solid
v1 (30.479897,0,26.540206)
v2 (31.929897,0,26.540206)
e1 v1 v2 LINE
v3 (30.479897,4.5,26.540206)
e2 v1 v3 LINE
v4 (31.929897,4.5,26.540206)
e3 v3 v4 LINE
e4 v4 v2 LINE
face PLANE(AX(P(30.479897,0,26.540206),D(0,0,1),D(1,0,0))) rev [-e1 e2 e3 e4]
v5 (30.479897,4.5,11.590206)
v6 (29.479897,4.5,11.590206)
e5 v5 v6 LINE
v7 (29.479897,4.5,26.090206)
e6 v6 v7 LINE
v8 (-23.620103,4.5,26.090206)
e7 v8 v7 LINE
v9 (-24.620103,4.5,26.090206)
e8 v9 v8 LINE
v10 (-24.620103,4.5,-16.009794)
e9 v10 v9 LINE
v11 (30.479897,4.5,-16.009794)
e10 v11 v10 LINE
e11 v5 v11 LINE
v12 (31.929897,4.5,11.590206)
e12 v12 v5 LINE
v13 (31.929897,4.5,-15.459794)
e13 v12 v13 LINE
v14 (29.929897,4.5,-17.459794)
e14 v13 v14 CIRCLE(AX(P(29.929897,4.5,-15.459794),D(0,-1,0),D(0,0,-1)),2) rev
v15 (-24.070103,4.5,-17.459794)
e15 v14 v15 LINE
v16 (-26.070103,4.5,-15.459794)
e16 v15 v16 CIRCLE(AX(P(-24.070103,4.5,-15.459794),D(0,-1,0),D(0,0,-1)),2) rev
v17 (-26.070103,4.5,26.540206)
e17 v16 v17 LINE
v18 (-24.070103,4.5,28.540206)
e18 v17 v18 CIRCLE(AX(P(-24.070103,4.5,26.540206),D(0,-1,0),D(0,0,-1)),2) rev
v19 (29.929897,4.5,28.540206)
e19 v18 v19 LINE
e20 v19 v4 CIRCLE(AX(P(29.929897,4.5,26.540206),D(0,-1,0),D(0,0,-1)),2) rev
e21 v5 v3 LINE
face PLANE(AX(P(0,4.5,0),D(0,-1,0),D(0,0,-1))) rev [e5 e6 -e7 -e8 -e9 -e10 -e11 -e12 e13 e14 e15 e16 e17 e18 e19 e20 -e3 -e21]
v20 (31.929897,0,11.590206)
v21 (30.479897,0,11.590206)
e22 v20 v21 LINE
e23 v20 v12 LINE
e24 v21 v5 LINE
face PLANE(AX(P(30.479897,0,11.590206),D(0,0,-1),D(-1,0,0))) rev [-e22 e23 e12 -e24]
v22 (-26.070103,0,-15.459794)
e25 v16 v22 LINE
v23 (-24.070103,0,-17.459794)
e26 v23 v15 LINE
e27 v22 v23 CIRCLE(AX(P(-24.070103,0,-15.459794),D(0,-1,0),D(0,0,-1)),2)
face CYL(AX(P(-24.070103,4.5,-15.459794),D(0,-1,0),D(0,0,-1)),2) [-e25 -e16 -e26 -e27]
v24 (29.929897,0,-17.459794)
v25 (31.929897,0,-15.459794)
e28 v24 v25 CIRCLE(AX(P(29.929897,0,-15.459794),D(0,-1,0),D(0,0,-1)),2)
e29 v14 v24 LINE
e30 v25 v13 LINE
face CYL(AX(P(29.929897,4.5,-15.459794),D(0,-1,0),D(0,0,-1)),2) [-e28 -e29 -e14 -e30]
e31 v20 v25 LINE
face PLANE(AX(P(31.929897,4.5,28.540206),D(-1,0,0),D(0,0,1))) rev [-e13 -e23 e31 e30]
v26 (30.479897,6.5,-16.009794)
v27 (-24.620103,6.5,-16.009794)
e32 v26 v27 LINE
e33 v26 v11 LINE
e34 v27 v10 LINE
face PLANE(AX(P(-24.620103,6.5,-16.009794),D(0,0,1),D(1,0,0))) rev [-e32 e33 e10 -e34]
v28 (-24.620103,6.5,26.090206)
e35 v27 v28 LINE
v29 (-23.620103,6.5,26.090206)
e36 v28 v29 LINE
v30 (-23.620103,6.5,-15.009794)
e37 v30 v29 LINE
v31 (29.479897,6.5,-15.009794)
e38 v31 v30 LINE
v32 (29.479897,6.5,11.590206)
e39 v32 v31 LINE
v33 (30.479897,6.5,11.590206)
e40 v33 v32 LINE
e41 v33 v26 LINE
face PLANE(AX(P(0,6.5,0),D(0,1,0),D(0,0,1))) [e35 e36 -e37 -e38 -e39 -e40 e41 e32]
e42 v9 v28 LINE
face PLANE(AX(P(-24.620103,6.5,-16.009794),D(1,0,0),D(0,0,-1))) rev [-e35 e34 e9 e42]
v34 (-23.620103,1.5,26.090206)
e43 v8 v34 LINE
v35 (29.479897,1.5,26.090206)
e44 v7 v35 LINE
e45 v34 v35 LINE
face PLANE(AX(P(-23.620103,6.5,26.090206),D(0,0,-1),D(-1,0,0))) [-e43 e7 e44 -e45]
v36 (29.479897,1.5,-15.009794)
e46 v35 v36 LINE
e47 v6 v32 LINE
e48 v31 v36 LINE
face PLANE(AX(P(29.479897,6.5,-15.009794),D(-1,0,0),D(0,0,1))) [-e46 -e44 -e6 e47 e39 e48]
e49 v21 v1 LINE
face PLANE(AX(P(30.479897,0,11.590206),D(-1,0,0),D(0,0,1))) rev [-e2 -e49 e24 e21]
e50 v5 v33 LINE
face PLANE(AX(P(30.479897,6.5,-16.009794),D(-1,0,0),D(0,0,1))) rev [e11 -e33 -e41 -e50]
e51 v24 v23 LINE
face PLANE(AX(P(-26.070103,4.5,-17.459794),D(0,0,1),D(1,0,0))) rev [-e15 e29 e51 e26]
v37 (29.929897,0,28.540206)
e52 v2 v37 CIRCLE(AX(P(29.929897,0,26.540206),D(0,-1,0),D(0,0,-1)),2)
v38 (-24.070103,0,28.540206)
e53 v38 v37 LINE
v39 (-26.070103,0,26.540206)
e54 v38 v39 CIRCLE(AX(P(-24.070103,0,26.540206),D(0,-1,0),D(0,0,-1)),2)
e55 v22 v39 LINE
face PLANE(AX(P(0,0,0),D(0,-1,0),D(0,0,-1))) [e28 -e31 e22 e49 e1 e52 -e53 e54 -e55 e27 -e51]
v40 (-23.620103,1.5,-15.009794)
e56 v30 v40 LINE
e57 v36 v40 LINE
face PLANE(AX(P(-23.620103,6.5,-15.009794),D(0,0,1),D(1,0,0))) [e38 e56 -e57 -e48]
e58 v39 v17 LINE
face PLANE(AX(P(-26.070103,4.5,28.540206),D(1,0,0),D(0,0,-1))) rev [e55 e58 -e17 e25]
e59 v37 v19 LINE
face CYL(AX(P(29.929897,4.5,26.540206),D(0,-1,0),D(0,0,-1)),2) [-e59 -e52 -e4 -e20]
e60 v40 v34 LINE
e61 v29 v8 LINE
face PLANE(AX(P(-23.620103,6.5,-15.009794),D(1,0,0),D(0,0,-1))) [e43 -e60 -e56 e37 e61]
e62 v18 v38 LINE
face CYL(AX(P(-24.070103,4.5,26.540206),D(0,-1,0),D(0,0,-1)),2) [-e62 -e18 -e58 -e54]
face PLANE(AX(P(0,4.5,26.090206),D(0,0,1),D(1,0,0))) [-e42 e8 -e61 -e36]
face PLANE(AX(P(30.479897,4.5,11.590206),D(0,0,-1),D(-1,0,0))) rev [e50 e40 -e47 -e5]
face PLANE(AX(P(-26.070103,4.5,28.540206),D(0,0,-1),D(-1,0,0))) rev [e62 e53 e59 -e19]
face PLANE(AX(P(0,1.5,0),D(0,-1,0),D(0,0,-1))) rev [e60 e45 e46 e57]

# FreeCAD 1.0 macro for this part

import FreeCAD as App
import Part
import Sketcher


def edges_at(feature, points):
    """Names of the edges that pass closest to the given points."""
    edges = feature.Shape.Edges
    near = lambda p: min(range(len(edges)), key=lambda i: edges[i].distToShape(Part.Vertex(*p))[0])
    return sorted({f"Edge{near(p) + 1}" for p in points})


def add_polygon(sketch, points):
    """Adds a closed chain of lines whose ends are joined by coincident constraints."""
    first, n = sketch.GeometryCount, len(points)
    for a, b in zip(points, points[1:] + points[:1]):
        sketch.addGeometry(Part.LineSegment(App.Vector(*a, 0), App.Vector(*b, 0)), False)
    for i in range(n):
        sketch.addConstraint(Sketcher.Constraint("Coincident", first + i, 2, first + (i + 1) % n, 1))

doc = App.newDocument("Part")
body = doc.addObject("PartDesign::Body", "Body")

# Sketch on XZ plane
sketch1 = doc.addObject("Sketcher::SketchObject", "Sketch")
body.addObject(sketch1)
sketch1.AttachmentSupport = (doc.XZ_Plane, [""])
sketch1.MapMode = "FlatFace"
add_polygon(sketch1, [(-26.070103, -17.459794), (-26.070103, 28.540206), (31.929897, 28.540206), (31.929897, -17.459794)])  # lines 0-3
sketch1.addConstraint([
    Sketcher.Constraint("Vertical", 0),
    Sketcher.Constraint("Horizontal", 1),
    Sketcher.Constraint("Vertical", 2),
    Sketcher.Constraint("Horizontal", 3),
    Sketcher.Constraint("DistanceX", 1, 1, 1, 2, 58.0),
    Sketcher.Constraint("DistanceY", 0, 1, 0, 2, 46.0),
    Sketcher.Constraint("DistanceX", 0, 2, -1, 1, 26.070103),
    Sketcher.Constraint("DistanceY", -1, 1, 0, 2, 28.540206),
])
pad1 = doc.addObject("PartDesign::Pad", "Pad")
body.addObject(pad1)
pad1.Profile = sketch1
pad1.Length = 4.5
pad1.Reversed = True

# Sketch on XZ plane
sketch2 = doc.addObject("Sketcher::SketchObject", "Sketch001")
body.addObject(sketch2)
sketch2.AttachmentSupport = (doc.XZ_Plane, [""])
sketch2.MapMode = "FlatFace"
sketch2.AttachmentOffset = App.Placement(App.Vector(0, 0, -4.5), App.Rotation())
add_polygon(sketch2, [(-24.620103, -16.009794), (-24.620103, 27.090206), (30.479897, 27.090206), (30.479897, -16.009794)])  # lines 0-3
add_polygon(sketch2, [(29.479897, 26.090206), (-23.620103, 26.090206), (-23.620103, -15.009794), (29.479897, -15.009794)])  # lines 4-7
sketch2.addConstraint([
    Sketcher.Constraint("Vertical", 0),
    Sketcher.Constraint("Horizontal", 1),
    Sketcher.Constraint("Vertical", 2),
    Sketcher.Constraint("Horizontal", 3),
    Sketcher.Constraint("Horizontal", 4),
    Sketcher.Constraint("Vertical", 5),
    Sketcher.Constraint("Horizontal", 6),
    Sketcher.Constraint("Vertical", 7),
    Sketcher.Constraint("DistanceX", 1, 1, 1, 2, 55.1),
    Sketcher.Constraint("DistanceX", 4, 2, 4, 1, 53.1),
    Sketcher.Constraint("DistanceY", 0, 1, 0, 2, 43.1),
    Sketcher.Constraint("DistanceY", 5, 2, 5, 1, 41.1),
    Sketcher.Constraint("DistanceX", 0, 2, 4, 2, 1.0),
    Sketcher.Constraint("DistanceY", 4, 2, 0, 2, 1.0),
    Sketcher.Constraint("DistanceX", 0, 2, -1, 1, 24.620103),
    Sketcher.Constraint("DistanceY", -1, 1, 0, 2, 27.090206),
])
pad2 = doc.addObject("PartDesign::Pad", "Pad001")
body.addObject(pad2)
pad2.Profile = sketch2
pad2.Length = 2
pad2.Reversed = True

# Sketch on XZ plane
sketch3 = doc.addObject("Sketcher::SketchObject", "Sketch002")
body.addObject(sketch3)
sketch3.AttachmentSupport = (doc.XZ_Plane, [""])
sketch3.MapMode = "FlatFace"
sketch3.AttachmentOffset = App.Placement(App.Vector(0, 0, -4.5), App.Rotation())
add_polygon(sketch3, [(-23.620103, -15.009794), (-23.620103, 26.090206), (29.479897, 26.090206), (29.479897, -15.009794)])  # lines 0-3
sketch3.addConstraint([
    Sketcher.Constraint("Vertical", 0),
    Sketcher.Constraint("Horizontal", 1),
    Sketcher.Constraint("Vertical", 2),
    Sketcher.Constraint("Horizontal", 3),
    Sketcher.Constraint("DistanceX", 1, 1, 1, 2, 53.1),
    Sketcher.Constraint("DistanceY", 0, 1, 0, 2, 41.1),
    Sketcher.Constraint("DistanceX", 0, 2, -1, 1, 23.620103),
    Sketcher.Constraint("DistanceY", -1, 1, 0, 2, 26.090206),
])
pocket1 = doc.addObject("PartDesign::Pocket", "Pocket")
body.addObject(pocket1)
pocket1.Profile = sketch3
pocket1.Length = 3
pocket1.Reversed = True

# Sketch on XZ plane
sketch4 = doc.addObject("Sketcher::SketchObject", "Sketch003")
body.addObject(sketch4)
sketch4.AttachmentSupport = (doc.XZ_Plane, [""])
sketch4.MapMode = "FlatFace"
sketch4.AttachmentOffset = App.Placement(App.Vector(0, 0, -6.5), App.Rotation())
add_polygon(sketch4, [(29.479897, 11.590206), (29.479897, 27.090206), (30.479897, 27.090206), (30.479897, 11.590206)])  # lines 0-3
sketch4.addConstraint([
    Sketcher.Constraint("Vertical", 0),
    Sketcher.Constraint("Horizontal", 1),
    Sketcher.Constraint("Vertical", 2),
    Sketcher.Constraint("Horizontal", 3),
    Sketcher.Constraint("DistanceX", 1, 1, 1, 2, 1.0),
    Sketcher.Constraint("DistanceY", 0, 1, 0, 2, 15.5),
    Sketcher.Constraint("DistanceX", -1, 1, 0, 2, 29.479897),
    Sketcher.Constraint("DistanceY", -1, 1, 0, 2, 27.090206),
])
pocket2 = doc.addObject("PartDesign::Pocket", "Pocket001")
body.addObject(pocket2)
pocket2.Profile = sketch4
pocket2.Length = 2
pocket2.Reversed = True

# Sketch on XZ plane
sketch5 = doc.addObject("Sketcher::SketchObject", "Sketch004")
body.addObject(sketch5)
sketch5.AttachmentSupport = (doc.XZ_Plane, [""])
sketch5.MapMode = "FlatFace"
sketch5.AttachmentOffset = App.Placement(App.Vector(0, 0, -6.5), App.Rotation())
add_polygon(sketch5, [(-24.620103, 26.090206), (-24.620103, 27.090206), (29.479897, 27.090206), (29.479897, 26.090206)])  # lines 0-3
sketch5.addConstraint([
    Sketcher.Constraint("Vertical", 0),
    Sketcher.Constraint("Horizontal", 1),
    Sketcher.Constraint("Vertical", 2),
    Sketcher.Constraint("Horizontal", 3),
    Sketcher.Constraint("DistanceY", 0, 1, 0, 2, 1.0),
    Sketcher.Constraint("DistanceX", 1, 1, 1, 2, 54.1),
    Sketcher.Constraint("DistanceX", 0, 2, -1, 1, 24.620103),
    Sketcher.Constraint("DistanceY", -1, 1, 0, 2, 27.090206),
])
pocket3 = doc.addObject("PartDesign::Pocket", "Pocket002")
body.addObject(pocket3)
pocket3.Profile = sketch5
pocket3.Length = 2
pocket3.Reversed = True
doc.recompute()

fillet = doc.addObject("PartDesign::Fillet", "Fillet")
body.addObject(fillet)
fillet.Base = (pocket3, edges_at(pocket3, [
    (-26.07, 2.25, -17.46),
    (31.93, 2.25, -17.46),
    (31.93, 2.25, 28.54),
    (-26.07, 2.25, 28.54),
]))
fillet.Radius = 2

# Sketch on XZ plane
sketch6 = doc.addObject("Sketcher::SketchObject", "Sketch005")
body.addObject(sketch6)
sketch6.AttachmentSupport = (doc.XZ_Plane, [""])
sketch6.MapMode = "FlatFace"
sketch6.AttachmentOffset = App.Placement(App.Vector(0, 0, -4.5), App.Rotation())
add_polygon(sketch6, [(30.479897, 11.590206), (30.479897, 26.540206), (31.929897, 26.540206), (31.929897, 11.590206)])  # lines 0-3
sketch6.addConstraint([
    Sketcher.Constraint("Vertical", 0),
    Sketcher.Constraint("Horizontal", 1),
    Sketcher.Constraint("Vertical", 2),
    Sketcher.Constraint("Horizontal", 3),
    Sketcher.Constraint("DistanceX", 1, 1, 1, 2, 1.45),
    Sketcher.Constraint("DistanceY", 0, 1, 0, 2, 14.95),
    Sketcher.Constraint("DistanceX", -1, 1, 0, 2, 30.479897),
    Sketcher.Constraint("DistanceY", -1, 1, 0, 2, 26.540206),
])
pocket4 = doc.addObject("PartDesign::Pocket", "Pocket003")
body.addObject(pocket4)
pocket4.Profile = sketch6
pocket4.Type = "ThroughAll"
pocket4.Reversed = True

doc.recompute()
